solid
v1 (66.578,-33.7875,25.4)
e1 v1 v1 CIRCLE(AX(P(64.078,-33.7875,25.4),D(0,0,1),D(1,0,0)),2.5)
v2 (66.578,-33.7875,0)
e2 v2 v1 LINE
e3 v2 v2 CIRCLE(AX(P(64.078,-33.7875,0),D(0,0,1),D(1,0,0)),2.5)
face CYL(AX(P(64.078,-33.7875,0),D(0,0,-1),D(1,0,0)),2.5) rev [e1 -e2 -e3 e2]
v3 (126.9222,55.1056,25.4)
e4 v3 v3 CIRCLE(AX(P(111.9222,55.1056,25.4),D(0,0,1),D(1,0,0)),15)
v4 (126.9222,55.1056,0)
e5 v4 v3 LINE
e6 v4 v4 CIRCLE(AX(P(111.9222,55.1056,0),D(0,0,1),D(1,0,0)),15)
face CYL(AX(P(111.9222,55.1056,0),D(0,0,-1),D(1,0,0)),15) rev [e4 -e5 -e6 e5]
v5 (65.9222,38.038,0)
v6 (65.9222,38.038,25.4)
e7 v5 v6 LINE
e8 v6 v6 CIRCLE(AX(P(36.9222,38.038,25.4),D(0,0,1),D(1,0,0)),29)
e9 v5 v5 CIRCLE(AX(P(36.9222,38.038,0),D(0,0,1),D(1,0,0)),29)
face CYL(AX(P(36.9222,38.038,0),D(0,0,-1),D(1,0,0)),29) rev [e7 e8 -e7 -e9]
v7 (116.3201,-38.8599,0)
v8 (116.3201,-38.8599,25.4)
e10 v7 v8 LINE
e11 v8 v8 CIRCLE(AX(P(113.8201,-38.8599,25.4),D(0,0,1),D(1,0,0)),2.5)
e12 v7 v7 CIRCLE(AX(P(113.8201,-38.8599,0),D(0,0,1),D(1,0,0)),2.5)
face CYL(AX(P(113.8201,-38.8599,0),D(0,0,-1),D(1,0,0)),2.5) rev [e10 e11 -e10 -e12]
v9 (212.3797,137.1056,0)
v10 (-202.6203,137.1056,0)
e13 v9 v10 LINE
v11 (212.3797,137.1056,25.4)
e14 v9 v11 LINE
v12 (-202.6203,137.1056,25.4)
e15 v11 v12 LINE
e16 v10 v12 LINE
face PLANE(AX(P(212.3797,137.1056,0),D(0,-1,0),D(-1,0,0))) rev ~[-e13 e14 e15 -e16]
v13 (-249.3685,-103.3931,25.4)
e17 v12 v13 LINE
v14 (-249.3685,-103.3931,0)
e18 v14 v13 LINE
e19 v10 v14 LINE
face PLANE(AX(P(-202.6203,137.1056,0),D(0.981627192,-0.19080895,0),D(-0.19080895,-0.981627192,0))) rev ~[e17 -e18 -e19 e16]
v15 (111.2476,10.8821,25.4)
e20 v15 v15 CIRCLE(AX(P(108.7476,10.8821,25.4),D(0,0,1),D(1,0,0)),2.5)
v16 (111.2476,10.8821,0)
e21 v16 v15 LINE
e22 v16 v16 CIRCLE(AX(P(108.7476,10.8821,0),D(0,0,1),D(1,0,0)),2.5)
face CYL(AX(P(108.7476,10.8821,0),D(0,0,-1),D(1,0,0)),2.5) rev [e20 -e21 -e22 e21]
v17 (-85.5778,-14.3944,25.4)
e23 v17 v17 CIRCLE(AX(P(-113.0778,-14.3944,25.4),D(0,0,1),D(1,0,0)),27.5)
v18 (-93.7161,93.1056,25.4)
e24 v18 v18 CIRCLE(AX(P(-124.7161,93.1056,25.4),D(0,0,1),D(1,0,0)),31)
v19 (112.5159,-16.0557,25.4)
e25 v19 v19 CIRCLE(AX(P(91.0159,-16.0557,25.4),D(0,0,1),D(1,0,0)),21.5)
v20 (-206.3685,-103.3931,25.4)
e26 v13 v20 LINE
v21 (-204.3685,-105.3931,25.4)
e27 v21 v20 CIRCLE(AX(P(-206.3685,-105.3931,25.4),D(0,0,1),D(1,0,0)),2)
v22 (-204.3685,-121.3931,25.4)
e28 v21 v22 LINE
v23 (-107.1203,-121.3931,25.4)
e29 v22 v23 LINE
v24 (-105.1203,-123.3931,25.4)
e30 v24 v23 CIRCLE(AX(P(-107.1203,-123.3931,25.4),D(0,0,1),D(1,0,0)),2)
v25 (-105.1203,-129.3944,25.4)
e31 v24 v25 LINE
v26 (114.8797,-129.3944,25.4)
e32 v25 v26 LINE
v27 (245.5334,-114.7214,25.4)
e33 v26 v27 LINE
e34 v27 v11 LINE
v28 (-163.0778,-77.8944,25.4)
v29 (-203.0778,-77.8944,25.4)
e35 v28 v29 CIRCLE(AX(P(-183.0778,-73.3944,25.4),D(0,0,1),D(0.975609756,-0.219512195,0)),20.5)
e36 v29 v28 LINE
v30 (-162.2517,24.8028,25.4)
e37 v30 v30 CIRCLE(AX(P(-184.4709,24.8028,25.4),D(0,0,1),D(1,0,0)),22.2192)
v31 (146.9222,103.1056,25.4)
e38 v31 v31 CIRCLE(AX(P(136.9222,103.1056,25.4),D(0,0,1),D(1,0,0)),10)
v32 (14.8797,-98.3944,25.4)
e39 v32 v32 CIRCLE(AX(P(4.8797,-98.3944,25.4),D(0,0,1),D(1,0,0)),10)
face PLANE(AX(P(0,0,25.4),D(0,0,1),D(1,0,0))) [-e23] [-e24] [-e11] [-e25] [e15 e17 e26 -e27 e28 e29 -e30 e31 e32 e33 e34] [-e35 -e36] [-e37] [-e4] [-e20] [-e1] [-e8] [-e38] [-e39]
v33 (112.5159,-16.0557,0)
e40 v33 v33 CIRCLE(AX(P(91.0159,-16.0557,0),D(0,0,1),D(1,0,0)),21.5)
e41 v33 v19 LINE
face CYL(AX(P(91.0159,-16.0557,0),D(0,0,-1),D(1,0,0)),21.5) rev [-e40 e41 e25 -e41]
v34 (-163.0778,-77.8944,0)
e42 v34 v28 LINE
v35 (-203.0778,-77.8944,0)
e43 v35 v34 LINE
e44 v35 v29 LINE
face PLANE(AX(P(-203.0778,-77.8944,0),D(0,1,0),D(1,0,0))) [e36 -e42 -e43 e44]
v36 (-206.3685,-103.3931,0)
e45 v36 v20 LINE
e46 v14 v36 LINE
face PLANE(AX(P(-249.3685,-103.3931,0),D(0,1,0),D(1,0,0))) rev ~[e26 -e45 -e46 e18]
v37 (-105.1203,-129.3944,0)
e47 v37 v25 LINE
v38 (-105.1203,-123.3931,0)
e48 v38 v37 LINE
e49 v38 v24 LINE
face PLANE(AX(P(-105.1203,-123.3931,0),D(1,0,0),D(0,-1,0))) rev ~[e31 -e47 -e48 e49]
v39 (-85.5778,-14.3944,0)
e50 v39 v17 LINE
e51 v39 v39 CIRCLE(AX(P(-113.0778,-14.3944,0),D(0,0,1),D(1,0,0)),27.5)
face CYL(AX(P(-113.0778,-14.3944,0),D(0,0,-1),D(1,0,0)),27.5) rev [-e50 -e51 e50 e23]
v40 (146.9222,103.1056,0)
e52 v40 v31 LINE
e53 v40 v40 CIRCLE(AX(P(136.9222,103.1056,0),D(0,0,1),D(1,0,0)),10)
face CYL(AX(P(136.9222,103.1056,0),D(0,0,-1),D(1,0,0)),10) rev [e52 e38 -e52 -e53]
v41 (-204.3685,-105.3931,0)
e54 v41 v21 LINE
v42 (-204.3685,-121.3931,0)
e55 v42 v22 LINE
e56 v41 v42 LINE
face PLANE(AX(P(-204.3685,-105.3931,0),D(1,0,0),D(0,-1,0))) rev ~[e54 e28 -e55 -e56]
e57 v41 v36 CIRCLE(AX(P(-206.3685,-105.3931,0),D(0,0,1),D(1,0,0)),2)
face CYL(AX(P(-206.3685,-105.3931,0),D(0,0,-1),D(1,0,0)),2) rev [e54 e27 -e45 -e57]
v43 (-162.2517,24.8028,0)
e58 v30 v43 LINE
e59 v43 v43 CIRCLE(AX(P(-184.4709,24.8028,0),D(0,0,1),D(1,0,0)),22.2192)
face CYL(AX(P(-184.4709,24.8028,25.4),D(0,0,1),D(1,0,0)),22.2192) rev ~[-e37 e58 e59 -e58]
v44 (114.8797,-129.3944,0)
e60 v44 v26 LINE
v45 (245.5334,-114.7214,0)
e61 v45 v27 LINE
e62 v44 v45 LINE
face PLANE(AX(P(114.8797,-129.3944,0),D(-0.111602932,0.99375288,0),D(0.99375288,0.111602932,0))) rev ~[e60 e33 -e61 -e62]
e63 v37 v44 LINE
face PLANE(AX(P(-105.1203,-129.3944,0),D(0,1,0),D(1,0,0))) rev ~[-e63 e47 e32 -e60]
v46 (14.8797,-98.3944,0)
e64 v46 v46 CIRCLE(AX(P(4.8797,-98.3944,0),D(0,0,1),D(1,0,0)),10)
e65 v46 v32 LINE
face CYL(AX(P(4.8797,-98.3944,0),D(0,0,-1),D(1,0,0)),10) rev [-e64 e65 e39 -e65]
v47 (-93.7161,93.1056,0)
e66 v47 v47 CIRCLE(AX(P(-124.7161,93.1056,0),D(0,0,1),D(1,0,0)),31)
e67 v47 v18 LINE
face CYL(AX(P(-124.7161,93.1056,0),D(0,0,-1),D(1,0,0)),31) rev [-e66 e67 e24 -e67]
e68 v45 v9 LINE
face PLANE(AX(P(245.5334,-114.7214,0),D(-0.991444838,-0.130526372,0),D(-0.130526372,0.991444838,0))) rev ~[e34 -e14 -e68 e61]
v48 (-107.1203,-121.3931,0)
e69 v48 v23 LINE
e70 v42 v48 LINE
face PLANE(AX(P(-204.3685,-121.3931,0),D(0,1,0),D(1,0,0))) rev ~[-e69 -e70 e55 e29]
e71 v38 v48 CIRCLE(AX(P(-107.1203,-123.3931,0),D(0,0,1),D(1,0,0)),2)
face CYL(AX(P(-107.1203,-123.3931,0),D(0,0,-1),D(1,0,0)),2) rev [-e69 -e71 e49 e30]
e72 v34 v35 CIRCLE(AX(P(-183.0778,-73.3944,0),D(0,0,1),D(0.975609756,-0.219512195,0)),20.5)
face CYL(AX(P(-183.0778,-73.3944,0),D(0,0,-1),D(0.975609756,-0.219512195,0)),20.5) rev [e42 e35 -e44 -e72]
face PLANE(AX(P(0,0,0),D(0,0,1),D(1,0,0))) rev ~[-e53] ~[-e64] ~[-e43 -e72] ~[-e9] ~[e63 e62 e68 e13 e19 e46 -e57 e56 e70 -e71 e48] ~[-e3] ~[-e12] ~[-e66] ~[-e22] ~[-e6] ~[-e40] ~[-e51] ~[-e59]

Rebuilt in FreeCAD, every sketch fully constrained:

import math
import FreeCAD as App
import Part
import Sketcher
from FreeCAD import Vector
Q = App.Units.Quantity

doc = App.newDocument("Part")
body = doc.addObject("PartDesign::Body", "Body")

sketch1 = doc.addObject("Sketcher::SketchObject", "Sketch")
body.addObject(sketch1)
sketch1.AttachmentSupport = (doc.XY_Plane, [""])
sketch1.MapMode = "FlatFace"
sketch1.addGeometry([
    Part.LineSegment(Vector(-105.1203, -123.3931, 0), Vector(-105.1203, -129.3944, 0)),
    Part.LineSegment(Vector(-105.1203, -129.3944, 0), Vector(114.8797, -129.3944, 0)),
    Part.LineSegment(Vector(114.8797, -129.3944, 0), Vector(245.5334, -114.7214, 0)),
    Part.LineSegment(Vector(245.5334, -114.7214, 0), Vector(212.3797, 137.1056, 0)),
    Part.LineSegment(Vector(212.3797, 137.1056, 0), Vector(-202.6203, 137.1056, 0)),
    Part.LineSegment(Vector(-202.6203, 137.1056, 0), Vector(-249.3685, -103.3931, 0)),
    Part.LineSegment(Vector(-249.3685, -103.3931, 0), Vector(-206.3685, -103.3931, 0)),
    Part.ArcOfCircle(Part.Circle(Vector(-206.3685, -105.3931, 0), Vector(0, 0, 1), 2), math.radians(0), math.radians(90)),
    Part.LineSegment(Vector(-204.3685, -105.3931, 0), Vector(-204.3685, -121.3931, 0)),
    Part.LineSegment(Vector(-204.3685, -121.3931, 0), Vector(-107.1203, -121.3931, 0)),
    Part.ArcOfCircle(Part.Circle(Vector(-107.1203, -123.3931, 0), Vector(0, 0, 1), 2), math.radians(0), math.radians(90)),
    Part.ArcOfCircle(Part.Circle(Vector(-183.0778, -73.3944, 0), Vector(0, 0, 1), 20.5), math.radians(-12.680383), math.radians(192.680383)),
    Part.LineSegment(Vector(-163.0778, -77.8944, 0), Vector(-203.0778, -77.8944, 0)),
    Part.Circle(Vector(-113.0778, -14.3944, 0), Vector(0, 0, 1), 27.5),
    Part.Circle(Vector(4.8797, -98.3944, 0), Vector(0, 0, 1), 10),
    Part.Circle(Vector(64.078, -33.7875, 0), Vector(0, 0, 1), 2.5),
    Part.Circle(Vector(113.8201, -38.8599, 0), Vector(0, 0, 1), 2.5),
    Part.Circle(Vector(91.0159, -16.0557, 0), Vector(0, 0, 1), 21.5),
    Part.Circle(Vector(-124.7161, 93.1056, 0), Vector(0, 0, 1), 31),
    Part.Circle(Vector(108.7476, 10.8821, 0), Vector(0, 0, 1), 2.5),
    Part.Circle(Vector(36.9222, 38.038, 0), Vector(0, 0, 1), 29),
    Part.Circle(Vector(111.9222, 55.1056, 0), Vector(0, 0, 1), 15),
    Part.Circle(Vector(136.9222, 103.1056, 0), Vector(0, 0, 1), 10),
], False)
sketch1.addConstraint([
    Sketcher.Constraint("Coincident", 0, 2, 1, 1),
    Sketcher.Constraint("Coincident", 1, 2, 2, 1),
    Sketcher.Constraint("Coincident", 2, 2, 3, 1),
    Sketcher.Constraint("Coincident", 3, 2, 4, 1),
    Sketcher.Constraint("Coincident", 4, 2, 5, 1),
    Sketcher.Constraint("Coincident", 5, 2, 6, 1),
    Sketcher.Constraint("Tangent", 6, 2, 7, 2),
    Sketcher.Constraint("Tangent", 7, 1, 8, 1),
    Sketcher.Constraint("Coincident", 8, 2, 9, 1),
    Sketcher.Constraint("Tangent", 9, 2, 10, 2),
    Sketcher.Constraint("Tangent", 10, 1, 0, 1),
    Sketcher.Constraint("Coincident", 11, 1, 12, 1),
    Sketcher.Constraint("Coincident", 12, 2, 11, 2),
    Sketcher.Constraint("Vertical", 0),
    Sketcher.Constraint("Horizontal", 1),
    Sketcher.Constraint("Horizontal", 4),
    Sketcher.Constraint("Horizontal", 6),
    Sketcher.Constraint("Vertical", 8),
    Sketcher.Constraint("Horizontal", 9),
    Sketcher.Constraint("Horizontal", 12),
    Sketcher.Constraint("Equal", 7, 10),
    Sketcher.Constraint("Equal", 15, 16),
    Sketcher.Constraint("Equal", 16, 19),
    Sketcher.Constraint("Equal", 14, 22),
    Sketcher.Constraint("Diameter", 13, Q("55 mm")),
    Sketcher.Constraint("Diameter", 14, Q("20 mm")),
    Sketcher.Constraint("Diameter", 15, Q("5 mm")),
    Sketcher.Constraint("Diameter", 17, Q("43 mm")),
    Sketcher.Constraint("Diameter", 18, Q("62 mm")),
    Sketcher.Constraint("Diameter", 20, Q("58 mm")),
    Sketcher.Constraint("Diameter", 21, Q("30 mm")),
    Sketcher.Constraint("Radius", 7, Q("2 mm")),
    Sketcher.Constraint("Radius", 11, Q("20.5 mm")),
    Sketcher.Constraint("DistanceX", 1, 1, 1, 2, Q("220 mm")),
    Sketcher.Constraint("DistanceX", 4, 2, 4, 1, Q("415 mm")),
    Sketcher.Constraint("DistanceX", 6, 1, 6, 2, Q("43 mm")),
    Sketcher.Constraint("DistanceX", 12, 2, 12, 1, Q("40 mm")),
    Sketcher.Constraint("DistanceY", 8, 2, 8, 1, Q("16 mm")),
    Sketcher.Constraint("Angle", 5, Q("-101 deg")),
    Sketcher.Constraint("Distance", 3, Q("254 mm")),
    Sketcher.Constraint("Distance", 5, Q("245 mm")),
    Sketcher.Constraint("Angle", 3, Q("97.5 deg")),
    Sketcher.Constraint("DistanceX", 11, 3, 13, 3, Q("70 mm")),
    Sketcher.Constraint("DistanceY", 11, 3, 13, 3, Q("59 mm")),
    Sketcher.Constraint("DistanceX", 10, 3, 14, 3, Q("112 mm")),
    Sketcher.Constraint("DistanceY", 14, 3, 13, 3, Q("84 mm")),
    Sketcher.Constraint("DistanceX", 20, 3, 21, 3, Q("75 mm")),
    Sketcher.Constraint("DistanceX", 21, 3, 22, 3, Q("25 mm")),
    Sketcher.Constraint("DistanceY", 21, 3, 22, 3, Q("48 mm")),
    Sketcher.Constraint("DistanceY", 0, 2, 11, 3, Q("56 mm")),
    Sketcher.Constraint("DistanceY", 22, 3, 3, 2, Q("34 mm")),
    Sketcher.Constraint("DistanceY", 18, 3, 4, 2, Q("44 mm")),
    Sketcher.Constraint("DistanceY", 13, 3, 18, 3, Q("107.5 mm")),
    Sketcher.Constraint("DistanceX", -1, 1, 16, 3, Q("113.82 mm")),
    Sketcher.Constraint("DistanceY", 16, 3, -1, 1, Q("38.86 mm")),
    Sketcher.Constraint("Distance", 2, Q("131.475 mm")),
    Sketcher.Constraint("DistanceY", 7, 3, -1, 1, Q("105.393 mm")),
    Sketcher.Constraint("DistanceX", -1, 1, 15, 3, Q("64.078 mm")),
    Sketcher.Constraint("DistanceX", -1, 1, 17, 3, Q("91.016 mm")),
    Sketcher.Constraint("DistanceX", 18, 3, -1, 1, Q("124.716 mm")),
    Sketcher.Constraint("DistanceY", -1, 1, 19, 3, Q("10.882 mm")),
    Sketcher.Constraint("DistanceY", -1, 1, 20, 3, Q("38.038 mm")),
    Sketcher.Constraint("DistanceY", 14, 3, 15, 3, Q("64.607 mm")),
    Sketcher.Constraint("DistanceX", 13, 3, 16, 3, Q("226.898 mm")),
    Sketcher.Constraint("DistanceX", 14, 3, 19, 3, Q("103.868 mm")),
    Sketcher.Constraint("DistanceX", 20, 3, 16, 3, Q("76.898 mm")),
    Sketcher.Constraint("DistanceX", 7, 3, -1, 1, Q("206.3685 mm")),
    Sketcher.Constraint("DistanceY", 17, 3, -1, 1, Q("16.0557 mm")),
])
pad1 = doc.addObject("PartDesign::Pad", "Pad")
body.addObject(pad1)
pad1.Profile = sketch1
pad1.Length = 25.4

sketch2 = doc.addObject("Sketcher::SketchObject", "Sketch001")
body.addObject(sketch2)
sketch2.AttachmentSupport = (doc.XY_Plane, [""])
sketch2.MapMode = "FlatFace"
sketch2.AttachmentOffset = App.Placement(Vector(0, 0, 25.4), App.Rotation())
sketch2.addGeometry(Part.Circle(Vector(-184.4709, 24.8028, 0), Vector(0, 0, 1), 22.2192), False)
sketch2.addConstraint([
    Sketcher.Constraint("Diameter", 0, Q("44.4384 mm")),
    Sketcher.Constraint("DistanceX", 0, 3, -1, 1, Q("184.471 mm")),
    Sketcher.Constraint("DistanceY", -1, 1, 0, 3, Q("24.8028 mm")),
])
pocket1 = doc.addObject("PartDesign::Pocket", "Pocket")
body.addObject(pocket1)
pocket1.Profile = sketch2
pocket1.Type = "ThroughAll"

doc.recompute()
